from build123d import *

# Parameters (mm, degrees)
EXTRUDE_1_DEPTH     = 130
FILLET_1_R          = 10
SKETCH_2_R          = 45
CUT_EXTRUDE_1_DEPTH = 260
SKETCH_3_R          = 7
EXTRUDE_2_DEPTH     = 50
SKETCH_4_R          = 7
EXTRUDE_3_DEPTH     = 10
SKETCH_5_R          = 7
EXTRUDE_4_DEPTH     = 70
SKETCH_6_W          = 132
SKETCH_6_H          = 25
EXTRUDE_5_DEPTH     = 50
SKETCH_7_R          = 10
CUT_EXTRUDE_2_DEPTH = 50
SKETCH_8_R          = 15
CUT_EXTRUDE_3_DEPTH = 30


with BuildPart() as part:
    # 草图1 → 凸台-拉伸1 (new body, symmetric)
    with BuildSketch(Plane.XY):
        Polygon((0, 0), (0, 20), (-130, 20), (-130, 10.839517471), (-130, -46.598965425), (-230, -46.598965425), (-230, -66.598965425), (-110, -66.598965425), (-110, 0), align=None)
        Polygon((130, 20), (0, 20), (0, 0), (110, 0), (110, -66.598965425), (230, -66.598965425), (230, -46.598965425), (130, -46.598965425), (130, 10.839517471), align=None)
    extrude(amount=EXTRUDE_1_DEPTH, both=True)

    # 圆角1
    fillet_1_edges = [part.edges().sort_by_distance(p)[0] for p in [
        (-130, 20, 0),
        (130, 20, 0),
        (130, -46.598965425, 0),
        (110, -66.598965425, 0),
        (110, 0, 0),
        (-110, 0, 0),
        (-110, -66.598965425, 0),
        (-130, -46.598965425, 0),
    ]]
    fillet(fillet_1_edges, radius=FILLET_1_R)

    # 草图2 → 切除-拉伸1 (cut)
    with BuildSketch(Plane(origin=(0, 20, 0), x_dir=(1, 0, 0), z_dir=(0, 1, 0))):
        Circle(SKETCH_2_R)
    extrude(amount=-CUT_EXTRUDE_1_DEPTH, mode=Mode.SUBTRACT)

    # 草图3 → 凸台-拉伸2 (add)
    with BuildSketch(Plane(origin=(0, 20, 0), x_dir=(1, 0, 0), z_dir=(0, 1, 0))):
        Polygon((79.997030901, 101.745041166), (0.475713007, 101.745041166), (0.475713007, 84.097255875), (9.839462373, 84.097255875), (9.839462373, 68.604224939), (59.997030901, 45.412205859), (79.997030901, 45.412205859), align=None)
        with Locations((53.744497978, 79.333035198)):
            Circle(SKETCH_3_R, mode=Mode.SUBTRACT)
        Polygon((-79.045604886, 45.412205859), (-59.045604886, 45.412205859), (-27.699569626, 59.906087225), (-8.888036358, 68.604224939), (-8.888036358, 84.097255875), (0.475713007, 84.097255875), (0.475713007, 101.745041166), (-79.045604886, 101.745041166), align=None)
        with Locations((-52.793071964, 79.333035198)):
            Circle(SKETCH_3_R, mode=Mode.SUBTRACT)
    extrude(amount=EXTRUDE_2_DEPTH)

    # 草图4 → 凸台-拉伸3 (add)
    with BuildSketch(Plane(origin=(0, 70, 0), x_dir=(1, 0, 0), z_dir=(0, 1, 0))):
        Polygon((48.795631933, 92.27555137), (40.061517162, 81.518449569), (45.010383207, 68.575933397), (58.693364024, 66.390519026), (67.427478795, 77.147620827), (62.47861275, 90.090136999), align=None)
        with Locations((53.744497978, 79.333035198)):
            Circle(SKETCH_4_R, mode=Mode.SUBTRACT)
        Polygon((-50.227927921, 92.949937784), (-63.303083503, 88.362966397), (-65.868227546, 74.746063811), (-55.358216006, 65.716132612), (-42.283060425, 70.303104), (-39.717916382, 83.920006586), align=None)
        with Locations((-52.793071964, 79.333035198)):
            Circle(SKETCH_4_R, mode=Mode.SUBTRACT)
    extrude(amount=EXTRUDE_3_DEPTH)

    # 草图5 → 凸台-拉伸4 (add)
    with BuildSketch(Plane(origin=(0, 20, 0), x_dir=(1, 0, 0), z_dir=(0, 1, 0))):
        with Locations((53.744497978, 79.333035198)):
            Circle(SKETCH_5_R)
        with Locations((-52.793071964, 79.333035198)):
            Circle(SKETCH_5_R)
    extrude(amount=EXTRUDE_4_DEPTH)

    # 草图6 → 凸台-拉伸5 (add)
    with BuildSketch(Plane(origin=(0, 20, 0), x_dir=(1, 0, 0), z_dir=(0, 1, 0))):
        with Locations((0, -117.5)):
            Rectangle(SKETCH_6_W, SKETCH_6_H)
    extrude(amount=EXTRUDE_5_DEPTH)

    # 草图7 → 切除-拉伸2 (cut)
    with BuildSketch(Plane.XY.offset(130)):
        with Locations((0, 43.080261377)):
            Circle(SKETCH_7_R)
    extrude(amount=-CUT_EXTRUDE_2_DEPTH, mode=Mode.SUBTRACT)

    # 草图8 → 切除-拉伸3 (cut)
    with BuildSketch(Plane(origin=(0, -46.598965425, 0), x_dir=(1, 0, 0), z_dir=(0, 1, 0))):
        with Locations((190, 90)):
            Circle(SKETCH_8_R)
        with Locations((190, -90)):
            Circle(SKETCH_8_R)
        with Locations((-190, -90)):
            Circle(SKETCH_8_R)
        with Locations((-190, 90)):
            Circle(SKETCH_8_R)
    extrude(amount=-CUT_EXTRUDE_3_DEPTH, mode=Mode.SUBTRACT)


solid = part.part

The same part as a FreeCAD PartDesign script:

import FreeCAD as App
import Part
import Sketcher
from FreeCAD import Vector


def edges_at(feature, points):
    """Names of the edges that pass closest to the given points."""
    edges = feature.Shape.Edges
    near = lambda p: min(range(len(edges)), key=lambda i: edges[i].distToShape(Part.Vertex(*p))[0])
    return sorted({f"Edge{near(p) + 1}" for p in points})


def add_polygon(sketch, points):
    """Adds a closed chain of lines whose ends are joined by coincident constraints."""
    first, n = sketch.GeometryCount, len(points)
    for a, b in zip(points, points[1:] + points[:1]):
        sketch.addGeometry(Part.LineSegment(App.Vector(*a, 0), App.Vector(*b, 0)), False)
    for i in range(n):
        sketch.addConstraint(Sketcher.Constraint("Coincident", first + i, 2, first + (i + 1) % n, 1))

doc = App.newDocument("Part")
params = doc.addObject("Spreadsheet::Sheet", "Params")
for row, (alias, value) in enumerate([
    ("sketch1_width", "100 mm"),
    ("sketch1_width2", "120 mm"),
    ("sketch1_width3", "220 mm"),
    ("sketch1_height", "20 mm"),
    ("pad1_length", "260 mm"),
    ("fillet_radius", "10 mm"),
    ("sketch2_diameter", "90 mm"),
    ("pocket1_length", "260 mm"),
    ("sketch3_diameter", "14 mm"),
    ("sketch3_width", "20 mm"),
    ("pad2_length", "50 mm"),
    ("sketch4_diameter", "14 mm"),
    ("pad3_length", "10 mm"),
    ("sketch5_diameter", "14 mm"),
    ("pad4_length", "70 mm"),
    ("sketch6_width", "132 mm"),
    ("sketch6_height", "25 mm"),
    ("pad5_length", "50 mm"),
    ("sketch7_diameter", "20 mm"),
    ("pocket2_length", "50 mm"),
    ("sketch8_diameter", "30 mm"),
    ("pocket3_length", "30 mm"),
], start=1):
    params.set(f"A{row}", alias)
    params.set(f"B{row}", "=" + value)
    params.setAlias(f"B{row}", alias)

body = doc.addObject("PartDesign::Body", "Body")

# Sketch on XY plane
sketch1 = doc.addObject("Sketcher::SketchObject", "Sketch")
body.addObject(sketch1)
sketch1.AttachmentSupport = (doc.XY_Plane, [""])
sketch1.MapMode = "FlatFace"
add_polygon(sketch1, [(-130, 20), (-130, -46.598965), (-230, -46.598965), (-230, -66.598965), (-110, -66.598965), (-110, 0), (110, 0), (110, -66.598965), (230, -66.598965), (230, -46.598965), (130, -46.598965), (130, 20)])  # lines 0-11
sketch1.addConstraint(Sketcher.Constraint("Vertical", 0))
sketch1.addConstraint(Sketcher.Constraint("Horizontal", 1))
sketch1.addConstraint(Sketcher.Constraint("Vertical", 2))
sketch1.addConstraint(Sketcher.Constraint("Horizontal", 3))
sketch1.addConstraint(Sketcher.Constraint("Vertical", 4))
sketch1.addConstraint(Sketcher.Constraint("Horizontal", 5))
sketch1.addConstraint(Sketcher.Constraint("Vertical", 6))
sketch1.addConstraint(Sketcher.Constraint("Horizontal", 7))
sketch1.addConstraint(Sketcher.Constraint("Vertical", 8))
sketch1.addConstraint(Sketcher.Constraint("Horizontal", 9))
sketch1.addConstraint(Sketcher.Constraint("Vertical", 10))
sketch1.addConstraint(Sketcher.Constraint("Horizontal", 11))
sketch1.addConstraint(Sketcher.Constraint("Symmetric", 4, 2, 5, 2, -1, 1))
sketch1.addConstraint(Sketcher.Constraint("Symmetric", 2, 2, 7, 2, -2))
sketch1.addConstraint(Sketcher.Constraint("Symmetric", 0, 2, 9, 2, -2))
sketch1.addConstraint(Sketcher.Constraint("Equal", 0, 4))
sketch1.addConstraint(Sketcher.Constraint("DistanceX", 1, 2, 1, 1, 100.0))
sketch1.addConstraint(Sketcher.Constraint("DistanceX", 3, 1, 3, 2, 120.0))
sketch1.addConstraint(Sketcher.Constraint("DistanceX", 5, 1, 5, 2, 220.0))
sketch1.addConstraint(Sketcher.Constraint("DistanceY", 2, 2, 2, 1, 20.0))
sketch1.addConstraint(Sketcher.Constraint("DistanceY", 0, 2, 0, 1, 66.598965))
sketch1.setExpression("Constraints[28]", "Params.sketch1_width")
sketch1.setExpression("Constraints[29]", "Params.sketch1_width2")
sketch1.setExpression("Constraints[30]", "Params.sketch1_width3")
sketch1.setExpression("Constraints[31]", "Params.sketch1_height")
pad1 = doc.addObject("PartDesign::Pad", "Pad")
body.addObject(pad1)
pad1.Profile = sketch1
pad1.setExpression("Length", "Params.pad1_length")
pad1.Midplane = True
doc.recompute()

fillet = doc.addObject("PartDesign::Fillet", "Fillet")
body.addObject(fillet)
fillet.Base = (pad1, edges_at(pad1, [
    (-130, 20, 0),
    (130, 20, 0),
    (130, -46.599, 0),
    (110, -66.599, 0),
    (110, 0, 0),
    (-110, 0, 0),
    (-110, -66.599, 0),
    (-130, -46.599, 0),
]))
fillet.setExpression("Radius", "Params.fillet_radius")

# Sketch on XZ plane
sketch2 = doc.addObject("Sketcher::SketchObject", "Sketch001")
body.addObject(sketch2)
sketch2.AttachmentSupport = (doc.XZ_Plane, [""])
sketch2.MapMode = "FlatFace"
sketch2.AttachmentOffset = App.Placement(Vector(0, 0, -20), App.Rotation())
sketch2.addGeometry(Part.Circle(Vector(0, 0, 0), Vector(0, 0, 1), 45), False)
sketch2.addConstraint(Sketcher.Constraint("Coincident", 0, 3, -1, 1))
sketch2.addConstraint(Sketcher.Constraint("Diameter", 0, 90.0))
sketch2.setExpression("Constraints[1]", "Params.sketch2_diameter")
pocket1 = doc.addObject("PartDesign::Pocket", "Pocket")
body.addObject(pocket1)
pocket1.Profile = sketch2
pocket1.setExpression("Length", "Params.pocket1_length")
pocket1.Reversed = True

# Sketch on XZ plane
sketch3 = doc.addObject("Sketcher::SketchObject", "Sketch002")
body.addObject(sketch3)
sketch3.AttachmentSupport = (doc.XZ_Plane, [""])
sketch3.MapMode = "FlatFace"
sketch3.AttachmentOffset = App.Placement(Vector(0, 0, -20), App.Rotation())
add_polygon(sketch3, [(79.997031, -101.745041), (-79.045605, -101.745041), (-79.045605, -45.412206), (-59.045605, -45.412206), (-27.69957, -59.906087), (-8.888036, -68.604225), (-8.888036, -84.097256), (9.839462, -84.097256), (9.839462, -68.604225), (59.997031, -45.412206), (79.997031, -45.412206)])  # lines 0-10
sketch3.addGeometry(Part.Circle(Vector(-52.793072, -79.333035, 0), Vector(0, 0, 1), 7), False)  # 11
sketch3.addGeometry(Part.Circle(Vector(53.744498, -79.333035, 0), Vector(0, 0, 1), 7), False)  # 12
sketch3.addConstraint(Sketcher.Constraint("Horizontal", 0))
sketch3.addConstraint(Sketcher.Constraint("Vertical", 1))
sketch3.addConstraint(Sketcher.Constraint("Horizontal", 2))
sketch3.addConstraint(Sketcher.Constraint("Vertical", 5))
sketch3.addConstraint(Sketcher.Constraint("Horizontal", 6))
sketch3.addConstraint(Sketcher.Constraint("Vertical", 7))
sketch3.addConstraint(Sketcher.Constraint("Horizontal", 9))
sketch3.addConstraint(Sketcher.Constraint("Vertical", 10))
sketch3.addConstraint(Sketcher.Constraint("Equal", 11, 12))
sketch3.addConstraint(Sketcher.Constraint("Parallel", 3, 4))
sketch3.addConstraint(Sketcher.Constraint("Horizontal", 11, 3, 12, 3))
sketch3.addConstraint(Sketcher.Constraint("Horizontal", 4, 2, 7, 2))
sketch3.addConstraint(Sketcher.Constraint("Horizontal", 2, 2, 8, 2))
sketch3.addConstraint(Sketcher.Constraint("Equal", 2, 9))
sketch3.addConstraint(Sketcher.Constraint("Diameter", 11, 14.0))
sketch3.addConstraint(Sketcher.Constraint("DistanceX", 2, 1, 2, 2, 20.0))
sketch3.addConstraint(Sketcher.Constraint("DistanceX", 6, 1, 6, 2, 18.727499))
sketch3.addConstraint(Sketcher.Constraint("DistanceY", 5, 2, 5, 1, 15.493031))
sketch3.addConstraint(Sketcher.Constraint("Distance", 4, 20.725139))
sketch3.addConstraint(Sketcher.Constraint("DistanceX", 0, 2, 0, 1, 159.042636))
sketch3.addConstraint(Sketcher.Constraint("DistanceY", 1, 1, 1, 2, 56.332835))
sketch3.addConstraint(Sketcher.Constraint("DistanceX", 11, 3, -1, 1, 52.793072))
sketch3.addConstraint(Sketcher.Constraint("DistanceY", 0, 2, -1, 1, 101.745041))
sketch3.addConstraint(Sketcher.Constraint("DistanceX", 3, 2, -1, 1, 27.69957))
sketch3.addConstraint(Sketcher.Constraint("DistanceX", -1, 1, 8, 2, 59.997031))
sketch3.addConstraint(Sketcher.Constraint("DistanceX", 11, 3, 12, 3, 106.53757))
sketch3.addConstraint(Sketcher.Constraint("DistanceY", 11, 3, 1, 2, 33.920829))
sketch3.addConstraint(Sketcher.Constraint("DistanceY", 3, 2, 2, 2, 14.493881))
sketch3.setExpression("Constraints[25]", "Params.sketch3_diameter")
sketch3.setExpression("Constraints[26]", "Params.sketch3_width")
pad2 = doc.addObject("PartDesign::Pad", "Pad001")
body.addObject(pad2)
pad2.Profile = sketch3
pad2.setExpression("Length", "Params.pad2_length")
pad2.Reversed = True

# Sketch on XZ plane
sketch4 = doc.addObject("Sketcher::SketchObject", "Sketch003")
body.addObject(sketch4)
sketch4.AttachmentSupport = (doc.XZ_Plane, [""])
sketch4.MapMode = "FlatFace"
sketch4.AttachmentOffset = App.Placement(Vector(0, 0, -70), App.Rotation())
add_polygon(sketch4, [(48.795632, -92.275551), (40.061517, -81.51845), (45.010383, -68.575933), (58.693364, -66.390519), (67.427479, -77.147621), (62.478613, -90.090137)])  # lines 0-5
sketch4.addGeometry(Part.Circle(Vector(53.744498, -79.333035, 0), Vector(0, 0, 1), 7), False)  # 6
add_polygon(sketch4, [(-50.227928, -92.949938), (-63.303084, -88.362966), (-65.868228, -74.746064), (-55.358216, -65.716133), (-42.28306, -70.303104), (-39.717916, -83.920007)])  # lines 7-12
sketch4.addGeometry(Part.Circle(Vector(-52.793072, -79.333035, 0), Vector(0, 0, 1), 7), False)  # 13
sketch4.addConstraint(Sketcher.Constraint("Equal", 6, 13))
sketch4.addConstraint(Sketcher.Constraint("Parallel", 0, 3))
sketch4.addConstraint(Sketcher.Constraint("Parallel", 1, 4))
sketch4.addConstraint(Sketcher.Constraint("Parallel", 2, 5))
sketch4.addConstraint(Sketcher.Constraint("Parallel", 7, 10))
sketch4.addConstraint(Sketcher.Constraint("Parallel", 8, 11))
sketch4.addConstraint(Sketcher.Constraint("Parallel", 9, 12))
sketch4.addConstraint(Sketcher.Constraint("Horizontal", 6, 3, 13, 3))
sketch4.addConstraint(Sketcher.Constraint("Equal", 0, 1))
sketch4.addConstraint(Sketcher.Constraint("Equal", 1, 2))
sketch4.addConstraint(Sketcher.Constraint("Equal", 2, 3))
sketch4.addConstraint(Sketcher.Constraint("Equal", 5, 7))
sketch4.addConstraint(Sketcher.Constraint("Equal", 7, 8))
sketch4.addConstraint(Sketcher.Constraint("Equal", 8, 9))
sketch4.addConstraint(Sketcher.Constraint("Equal", 9, 10))
sketch4.addConstraint(Sketcher.Constraint("Diameter", 6, 14.0))
sketch4.addConstraint(Sketcher.Constraint("DistanceY", 6, 3, 1, 2, 10.757102))
sketch4.addConstraint(Sketcher.Constraint("DistanceY", 3, 2, 2, 2, 10.757102))
sketch4.addConstraint(Sketcher.Constraint("DistanceY", 4, 2, 6, 3, 10.757102))
sketch4.addConstraint(Sketcher.Constraint("DistanceX", 7, 2, 0, 2, 103.364601))
sketch4.addConstraint(Sketcher.Constraint("DistanceX", 9, 2, 1, 2, 100.368599))
sketch4.addConstraint(Sketcher.Constraint("DistanceY", 1, 2, 9, 2, 2.859801))
sketch4.addConstraint(Sketcher.Constraint("DistanceX", 9, 2, 11, 2, 15.6403))
sketch4.addConstraint(Sketcher.Constraint("DistanceX", 13, 3, -1, 1, 52.793072))
sketch4.addConstraint(Sketcher.Constraint("DistanceY", 0, 2, -1, 1, 81.51845))
sketch4.addConstraint(Sketcher.Constraint("DistanceY", 2, 2, -1, 1, 66.390519))
sketch4.addConstraint(Sketcher.Constraint("DistanceX", -1, 1, 3, 2, 67.427479))
sketch4.addConstraint(Sketcher.Constraint("DistanceX", -1, 1, 5, 2, 48.795632))
sketch4.addConstraint(Sketcher.Constraint("DistanceX", 10, 2, -1, 1, 42.28306))
sketch4.addConstraint(Sketcher.Constraint("DistanceX", 13, 3, 6, 3, 106.53757))
sketch4.setExpression("Constraints[27]", "Params.sketch4_diameter")
pad3 = doc.addObject("PartDesign::Pad", "Pad002")
body.addObject(pad3)
pad3.Profile = sketch4
pad3.setExpression("Length", "Params.pad3_length")
pad3.Reversed = True

# Sketch on XZ plane
sketch5 = doc.addObject("Sketcher::SketchObject", "Sketch004")
body.addObject(sketch5)
sketch5.AttachmentSupport = (doc.XZ_Plane, [""])
sketch5.MapMode = "FlatFace"
sketch5.AttachmentOffset = App.Placement(Vector(0, 0, -20), App.Rotation())
sketch5.addGeometry(Part.Circle(Vector(53.744498, -79.333035, 0), Vector(0, 0, 1), 7), False)
sketch5.addGeometry(Part.Circle(Vector(-52.793072, -79.333035, 0), Vector(0, 0, 1), 7), False)
sketch5.addConstraint(Sketcher.Constraint("Equal", 0, 1))
sketch5.addConstraint(Sketcher.Constraint("Horizontal", 0, 3, 1, 3))
sketch5.addConstraint(Sketcher.Constraint("Diameter", 0, 14.0))
sketch5.addConstraint(Sketcher.Constraint("DistanceX", 1, 3, -1, 1, 52.793072))
sketch5.addConstraint(Sketcher.Constraint("DistanceX", 1, 3, 0, 3, 106.53757))
sketch5.addConstraint(Sketcher.Constraint("DistanceY", 0, 3, -1, 1, 79.333035))
sketch5.setExpression("Constraints[2]", "Params.sketch5_diameter")
pad4 = doc.addObject("PartDesign::Pad", "Pad003")
body.addObject(pad4)
pad4.Profile = sketch5
pad4.setExpression("Length", "Params.pad4_length")
pad4.Reversed = True

# Sketch on XZ plane
sketch6 = doc.addObject("Sketcher::SketchObject", "Sketch005")
body.addObject(sketch6)
sketch6.AttachmentSupport = (doc.XZ_Plane, [""])
sketch6.MapMode = "FlatFace"
sketch6.AttachmentOffset = App.Placement(Vector(0, 0, -20), App.Rotation())
add_polygon(sketch6, [(-66, 105), (-66, 130), (66, 130), (66, 105)])  # lines 0-3
sketch6.addConstraint(Sketcher.Constraint("Vertical", 0))
sketch6.addConstraint(Sketcher.Constraint("Horizontal", 1))
sketch6.addConstraint(Sketcher.Constraint("Vertical", 2))
sketch6.addConstraint(Sketcher.Constraint("Horizontal", 3))
sketch6.addConstraint(Sketcher.Constraint("DistanceX", 1, 1, 1, 2, 132.0))
sketch6.addConstraint(Sketcher.Constraint("DistanceY", 0, 1, 0, 2, 25.0))
sketch6.addConstraint(Sketcher.Constraint("DistanceX", 0, 2, -1, 1, 66.0))
sketch6.addConstraint(Sketcher.Constraint("DistanceY", -1, 1, 0, 2, 130.0))
sketch6.setExpression("Constraints[8]", "Params.sketch6_width")
sketch6.setExpression("Constraints[9]", "Params.sketch6_height")
pad5 = doc.addObject("PartDesign::Pad", "Pad004")
body.addObject(pad5)
pad5.Profile = sketch6
pad5.setExpression("Length", "Params.pad5_length")
pad5.Reversed = True

# Sketch on XY plane
sketch7 = doc.addObject("Sketcher::SketchObject", "Sketch006")
body.addObject(sketch7)
sketch7.AttachmentSupport = (doc.XY_Plane, [""])
sketch7.MapMode = "FlatFace"
sketch7.AttachmentOffset = App.Placement(Vector(0, 0, 130), App.Rotation())
sketch7.addGeometry(Part.Circle(Vector(0, 43.080261, 0), Vector(0, 0, 1), 10), False)
sketch7.addConstraint(Sketcher.Constraint("PointOnObject", 0, 3, -2))
sketch7.addConstraint(Sketcher.Constraint("Diameter", 0, 20.0))
sketch7.addConstraint(Sketcher.Constraint("DistanceY", -1, 1, 0, 3, 43.080261))
sketch7.setExpression("Constraints[1]", "Params.sketch7_diameter")
pocket2 = doc.addObject("PartDesign::Pocket", "Pocket001")
body.addObject(pocket2)
pocket2.Profile = sketch7
pocket2.setExpression("Length", "Params.pocket2_length")

# Sketch on XZ plane
sketch8 = doc.addObject("Sketcher::SketchObject", "Sketch007")
body.addObject(sketch8)
sketch8.AttachmentSupport = (doc.XZ_Plane, [""])
sketch8.MapMode = "FlatFace"
sketch8.AttachmentOffset = App.Placement(Vector(0, 0, 46.598965), App.Rotation())
sketch8.addGeometry(Part.Circle(Vector(190, -90, 0), Vector(0, 0, 1), 15), False)
sketch8.addGeometry(Part.Circle(Vector(190, 90, 0), Vector(0, 0, 1), 15), False)
sketch8.addGeometry(Part.Circle(Vector(-190, 90, 0), Vector(0, 0, 1), 15), False)
sketch8.addGeometry(Part.Circle(Vector(-190, -90, 0), Vector(0, 0, 1), 15), False)
sketch8.addConstraint(Sketcher.Constraint("Equal", 0, 1))
sketch8.addConstraint(Sketcher.Constraint("Equal", 1, 2))
sketch8.addConstraint(Sketcher.Constraint("Equal", 2, 3))
sketch8.addConstraint(Sketcher.Constraint("Symmetric", 0, 3, 2, 3, -1, 1))
sketch8.addConstraint(Sketcher.Constraint("Symmetric", 1, 3, 3, 3, -1, 1))
sketch8.addConstraint(Sketcher.Constraint("Symmetric", 1, 3, 2, 3, -2))
sketch8.addConstraint(Sketcher.Constraint("Diameter", 0, 30.0))
sketch8.addConstraint(Sketcher.Constraint("DistanceX", -1, 1, 0, 3, 190.0))
sketch8.addConstraint(Sketcher.Constraint("DistanceY", 0, 3, -1, 1, 90.0))
sketch8.setExpression("Constraints[6]", "Params.sketch8_diameter")
pocket3 = doc.addObject("PartDesign::Pocket", "Pocket002")
body.addObject(pocket3)
pocket3.Profile = sketch8
pocket3.setExpression("Length", "Params.pocket3_length")
pocket3.Reversed = True

doc.recompute()
